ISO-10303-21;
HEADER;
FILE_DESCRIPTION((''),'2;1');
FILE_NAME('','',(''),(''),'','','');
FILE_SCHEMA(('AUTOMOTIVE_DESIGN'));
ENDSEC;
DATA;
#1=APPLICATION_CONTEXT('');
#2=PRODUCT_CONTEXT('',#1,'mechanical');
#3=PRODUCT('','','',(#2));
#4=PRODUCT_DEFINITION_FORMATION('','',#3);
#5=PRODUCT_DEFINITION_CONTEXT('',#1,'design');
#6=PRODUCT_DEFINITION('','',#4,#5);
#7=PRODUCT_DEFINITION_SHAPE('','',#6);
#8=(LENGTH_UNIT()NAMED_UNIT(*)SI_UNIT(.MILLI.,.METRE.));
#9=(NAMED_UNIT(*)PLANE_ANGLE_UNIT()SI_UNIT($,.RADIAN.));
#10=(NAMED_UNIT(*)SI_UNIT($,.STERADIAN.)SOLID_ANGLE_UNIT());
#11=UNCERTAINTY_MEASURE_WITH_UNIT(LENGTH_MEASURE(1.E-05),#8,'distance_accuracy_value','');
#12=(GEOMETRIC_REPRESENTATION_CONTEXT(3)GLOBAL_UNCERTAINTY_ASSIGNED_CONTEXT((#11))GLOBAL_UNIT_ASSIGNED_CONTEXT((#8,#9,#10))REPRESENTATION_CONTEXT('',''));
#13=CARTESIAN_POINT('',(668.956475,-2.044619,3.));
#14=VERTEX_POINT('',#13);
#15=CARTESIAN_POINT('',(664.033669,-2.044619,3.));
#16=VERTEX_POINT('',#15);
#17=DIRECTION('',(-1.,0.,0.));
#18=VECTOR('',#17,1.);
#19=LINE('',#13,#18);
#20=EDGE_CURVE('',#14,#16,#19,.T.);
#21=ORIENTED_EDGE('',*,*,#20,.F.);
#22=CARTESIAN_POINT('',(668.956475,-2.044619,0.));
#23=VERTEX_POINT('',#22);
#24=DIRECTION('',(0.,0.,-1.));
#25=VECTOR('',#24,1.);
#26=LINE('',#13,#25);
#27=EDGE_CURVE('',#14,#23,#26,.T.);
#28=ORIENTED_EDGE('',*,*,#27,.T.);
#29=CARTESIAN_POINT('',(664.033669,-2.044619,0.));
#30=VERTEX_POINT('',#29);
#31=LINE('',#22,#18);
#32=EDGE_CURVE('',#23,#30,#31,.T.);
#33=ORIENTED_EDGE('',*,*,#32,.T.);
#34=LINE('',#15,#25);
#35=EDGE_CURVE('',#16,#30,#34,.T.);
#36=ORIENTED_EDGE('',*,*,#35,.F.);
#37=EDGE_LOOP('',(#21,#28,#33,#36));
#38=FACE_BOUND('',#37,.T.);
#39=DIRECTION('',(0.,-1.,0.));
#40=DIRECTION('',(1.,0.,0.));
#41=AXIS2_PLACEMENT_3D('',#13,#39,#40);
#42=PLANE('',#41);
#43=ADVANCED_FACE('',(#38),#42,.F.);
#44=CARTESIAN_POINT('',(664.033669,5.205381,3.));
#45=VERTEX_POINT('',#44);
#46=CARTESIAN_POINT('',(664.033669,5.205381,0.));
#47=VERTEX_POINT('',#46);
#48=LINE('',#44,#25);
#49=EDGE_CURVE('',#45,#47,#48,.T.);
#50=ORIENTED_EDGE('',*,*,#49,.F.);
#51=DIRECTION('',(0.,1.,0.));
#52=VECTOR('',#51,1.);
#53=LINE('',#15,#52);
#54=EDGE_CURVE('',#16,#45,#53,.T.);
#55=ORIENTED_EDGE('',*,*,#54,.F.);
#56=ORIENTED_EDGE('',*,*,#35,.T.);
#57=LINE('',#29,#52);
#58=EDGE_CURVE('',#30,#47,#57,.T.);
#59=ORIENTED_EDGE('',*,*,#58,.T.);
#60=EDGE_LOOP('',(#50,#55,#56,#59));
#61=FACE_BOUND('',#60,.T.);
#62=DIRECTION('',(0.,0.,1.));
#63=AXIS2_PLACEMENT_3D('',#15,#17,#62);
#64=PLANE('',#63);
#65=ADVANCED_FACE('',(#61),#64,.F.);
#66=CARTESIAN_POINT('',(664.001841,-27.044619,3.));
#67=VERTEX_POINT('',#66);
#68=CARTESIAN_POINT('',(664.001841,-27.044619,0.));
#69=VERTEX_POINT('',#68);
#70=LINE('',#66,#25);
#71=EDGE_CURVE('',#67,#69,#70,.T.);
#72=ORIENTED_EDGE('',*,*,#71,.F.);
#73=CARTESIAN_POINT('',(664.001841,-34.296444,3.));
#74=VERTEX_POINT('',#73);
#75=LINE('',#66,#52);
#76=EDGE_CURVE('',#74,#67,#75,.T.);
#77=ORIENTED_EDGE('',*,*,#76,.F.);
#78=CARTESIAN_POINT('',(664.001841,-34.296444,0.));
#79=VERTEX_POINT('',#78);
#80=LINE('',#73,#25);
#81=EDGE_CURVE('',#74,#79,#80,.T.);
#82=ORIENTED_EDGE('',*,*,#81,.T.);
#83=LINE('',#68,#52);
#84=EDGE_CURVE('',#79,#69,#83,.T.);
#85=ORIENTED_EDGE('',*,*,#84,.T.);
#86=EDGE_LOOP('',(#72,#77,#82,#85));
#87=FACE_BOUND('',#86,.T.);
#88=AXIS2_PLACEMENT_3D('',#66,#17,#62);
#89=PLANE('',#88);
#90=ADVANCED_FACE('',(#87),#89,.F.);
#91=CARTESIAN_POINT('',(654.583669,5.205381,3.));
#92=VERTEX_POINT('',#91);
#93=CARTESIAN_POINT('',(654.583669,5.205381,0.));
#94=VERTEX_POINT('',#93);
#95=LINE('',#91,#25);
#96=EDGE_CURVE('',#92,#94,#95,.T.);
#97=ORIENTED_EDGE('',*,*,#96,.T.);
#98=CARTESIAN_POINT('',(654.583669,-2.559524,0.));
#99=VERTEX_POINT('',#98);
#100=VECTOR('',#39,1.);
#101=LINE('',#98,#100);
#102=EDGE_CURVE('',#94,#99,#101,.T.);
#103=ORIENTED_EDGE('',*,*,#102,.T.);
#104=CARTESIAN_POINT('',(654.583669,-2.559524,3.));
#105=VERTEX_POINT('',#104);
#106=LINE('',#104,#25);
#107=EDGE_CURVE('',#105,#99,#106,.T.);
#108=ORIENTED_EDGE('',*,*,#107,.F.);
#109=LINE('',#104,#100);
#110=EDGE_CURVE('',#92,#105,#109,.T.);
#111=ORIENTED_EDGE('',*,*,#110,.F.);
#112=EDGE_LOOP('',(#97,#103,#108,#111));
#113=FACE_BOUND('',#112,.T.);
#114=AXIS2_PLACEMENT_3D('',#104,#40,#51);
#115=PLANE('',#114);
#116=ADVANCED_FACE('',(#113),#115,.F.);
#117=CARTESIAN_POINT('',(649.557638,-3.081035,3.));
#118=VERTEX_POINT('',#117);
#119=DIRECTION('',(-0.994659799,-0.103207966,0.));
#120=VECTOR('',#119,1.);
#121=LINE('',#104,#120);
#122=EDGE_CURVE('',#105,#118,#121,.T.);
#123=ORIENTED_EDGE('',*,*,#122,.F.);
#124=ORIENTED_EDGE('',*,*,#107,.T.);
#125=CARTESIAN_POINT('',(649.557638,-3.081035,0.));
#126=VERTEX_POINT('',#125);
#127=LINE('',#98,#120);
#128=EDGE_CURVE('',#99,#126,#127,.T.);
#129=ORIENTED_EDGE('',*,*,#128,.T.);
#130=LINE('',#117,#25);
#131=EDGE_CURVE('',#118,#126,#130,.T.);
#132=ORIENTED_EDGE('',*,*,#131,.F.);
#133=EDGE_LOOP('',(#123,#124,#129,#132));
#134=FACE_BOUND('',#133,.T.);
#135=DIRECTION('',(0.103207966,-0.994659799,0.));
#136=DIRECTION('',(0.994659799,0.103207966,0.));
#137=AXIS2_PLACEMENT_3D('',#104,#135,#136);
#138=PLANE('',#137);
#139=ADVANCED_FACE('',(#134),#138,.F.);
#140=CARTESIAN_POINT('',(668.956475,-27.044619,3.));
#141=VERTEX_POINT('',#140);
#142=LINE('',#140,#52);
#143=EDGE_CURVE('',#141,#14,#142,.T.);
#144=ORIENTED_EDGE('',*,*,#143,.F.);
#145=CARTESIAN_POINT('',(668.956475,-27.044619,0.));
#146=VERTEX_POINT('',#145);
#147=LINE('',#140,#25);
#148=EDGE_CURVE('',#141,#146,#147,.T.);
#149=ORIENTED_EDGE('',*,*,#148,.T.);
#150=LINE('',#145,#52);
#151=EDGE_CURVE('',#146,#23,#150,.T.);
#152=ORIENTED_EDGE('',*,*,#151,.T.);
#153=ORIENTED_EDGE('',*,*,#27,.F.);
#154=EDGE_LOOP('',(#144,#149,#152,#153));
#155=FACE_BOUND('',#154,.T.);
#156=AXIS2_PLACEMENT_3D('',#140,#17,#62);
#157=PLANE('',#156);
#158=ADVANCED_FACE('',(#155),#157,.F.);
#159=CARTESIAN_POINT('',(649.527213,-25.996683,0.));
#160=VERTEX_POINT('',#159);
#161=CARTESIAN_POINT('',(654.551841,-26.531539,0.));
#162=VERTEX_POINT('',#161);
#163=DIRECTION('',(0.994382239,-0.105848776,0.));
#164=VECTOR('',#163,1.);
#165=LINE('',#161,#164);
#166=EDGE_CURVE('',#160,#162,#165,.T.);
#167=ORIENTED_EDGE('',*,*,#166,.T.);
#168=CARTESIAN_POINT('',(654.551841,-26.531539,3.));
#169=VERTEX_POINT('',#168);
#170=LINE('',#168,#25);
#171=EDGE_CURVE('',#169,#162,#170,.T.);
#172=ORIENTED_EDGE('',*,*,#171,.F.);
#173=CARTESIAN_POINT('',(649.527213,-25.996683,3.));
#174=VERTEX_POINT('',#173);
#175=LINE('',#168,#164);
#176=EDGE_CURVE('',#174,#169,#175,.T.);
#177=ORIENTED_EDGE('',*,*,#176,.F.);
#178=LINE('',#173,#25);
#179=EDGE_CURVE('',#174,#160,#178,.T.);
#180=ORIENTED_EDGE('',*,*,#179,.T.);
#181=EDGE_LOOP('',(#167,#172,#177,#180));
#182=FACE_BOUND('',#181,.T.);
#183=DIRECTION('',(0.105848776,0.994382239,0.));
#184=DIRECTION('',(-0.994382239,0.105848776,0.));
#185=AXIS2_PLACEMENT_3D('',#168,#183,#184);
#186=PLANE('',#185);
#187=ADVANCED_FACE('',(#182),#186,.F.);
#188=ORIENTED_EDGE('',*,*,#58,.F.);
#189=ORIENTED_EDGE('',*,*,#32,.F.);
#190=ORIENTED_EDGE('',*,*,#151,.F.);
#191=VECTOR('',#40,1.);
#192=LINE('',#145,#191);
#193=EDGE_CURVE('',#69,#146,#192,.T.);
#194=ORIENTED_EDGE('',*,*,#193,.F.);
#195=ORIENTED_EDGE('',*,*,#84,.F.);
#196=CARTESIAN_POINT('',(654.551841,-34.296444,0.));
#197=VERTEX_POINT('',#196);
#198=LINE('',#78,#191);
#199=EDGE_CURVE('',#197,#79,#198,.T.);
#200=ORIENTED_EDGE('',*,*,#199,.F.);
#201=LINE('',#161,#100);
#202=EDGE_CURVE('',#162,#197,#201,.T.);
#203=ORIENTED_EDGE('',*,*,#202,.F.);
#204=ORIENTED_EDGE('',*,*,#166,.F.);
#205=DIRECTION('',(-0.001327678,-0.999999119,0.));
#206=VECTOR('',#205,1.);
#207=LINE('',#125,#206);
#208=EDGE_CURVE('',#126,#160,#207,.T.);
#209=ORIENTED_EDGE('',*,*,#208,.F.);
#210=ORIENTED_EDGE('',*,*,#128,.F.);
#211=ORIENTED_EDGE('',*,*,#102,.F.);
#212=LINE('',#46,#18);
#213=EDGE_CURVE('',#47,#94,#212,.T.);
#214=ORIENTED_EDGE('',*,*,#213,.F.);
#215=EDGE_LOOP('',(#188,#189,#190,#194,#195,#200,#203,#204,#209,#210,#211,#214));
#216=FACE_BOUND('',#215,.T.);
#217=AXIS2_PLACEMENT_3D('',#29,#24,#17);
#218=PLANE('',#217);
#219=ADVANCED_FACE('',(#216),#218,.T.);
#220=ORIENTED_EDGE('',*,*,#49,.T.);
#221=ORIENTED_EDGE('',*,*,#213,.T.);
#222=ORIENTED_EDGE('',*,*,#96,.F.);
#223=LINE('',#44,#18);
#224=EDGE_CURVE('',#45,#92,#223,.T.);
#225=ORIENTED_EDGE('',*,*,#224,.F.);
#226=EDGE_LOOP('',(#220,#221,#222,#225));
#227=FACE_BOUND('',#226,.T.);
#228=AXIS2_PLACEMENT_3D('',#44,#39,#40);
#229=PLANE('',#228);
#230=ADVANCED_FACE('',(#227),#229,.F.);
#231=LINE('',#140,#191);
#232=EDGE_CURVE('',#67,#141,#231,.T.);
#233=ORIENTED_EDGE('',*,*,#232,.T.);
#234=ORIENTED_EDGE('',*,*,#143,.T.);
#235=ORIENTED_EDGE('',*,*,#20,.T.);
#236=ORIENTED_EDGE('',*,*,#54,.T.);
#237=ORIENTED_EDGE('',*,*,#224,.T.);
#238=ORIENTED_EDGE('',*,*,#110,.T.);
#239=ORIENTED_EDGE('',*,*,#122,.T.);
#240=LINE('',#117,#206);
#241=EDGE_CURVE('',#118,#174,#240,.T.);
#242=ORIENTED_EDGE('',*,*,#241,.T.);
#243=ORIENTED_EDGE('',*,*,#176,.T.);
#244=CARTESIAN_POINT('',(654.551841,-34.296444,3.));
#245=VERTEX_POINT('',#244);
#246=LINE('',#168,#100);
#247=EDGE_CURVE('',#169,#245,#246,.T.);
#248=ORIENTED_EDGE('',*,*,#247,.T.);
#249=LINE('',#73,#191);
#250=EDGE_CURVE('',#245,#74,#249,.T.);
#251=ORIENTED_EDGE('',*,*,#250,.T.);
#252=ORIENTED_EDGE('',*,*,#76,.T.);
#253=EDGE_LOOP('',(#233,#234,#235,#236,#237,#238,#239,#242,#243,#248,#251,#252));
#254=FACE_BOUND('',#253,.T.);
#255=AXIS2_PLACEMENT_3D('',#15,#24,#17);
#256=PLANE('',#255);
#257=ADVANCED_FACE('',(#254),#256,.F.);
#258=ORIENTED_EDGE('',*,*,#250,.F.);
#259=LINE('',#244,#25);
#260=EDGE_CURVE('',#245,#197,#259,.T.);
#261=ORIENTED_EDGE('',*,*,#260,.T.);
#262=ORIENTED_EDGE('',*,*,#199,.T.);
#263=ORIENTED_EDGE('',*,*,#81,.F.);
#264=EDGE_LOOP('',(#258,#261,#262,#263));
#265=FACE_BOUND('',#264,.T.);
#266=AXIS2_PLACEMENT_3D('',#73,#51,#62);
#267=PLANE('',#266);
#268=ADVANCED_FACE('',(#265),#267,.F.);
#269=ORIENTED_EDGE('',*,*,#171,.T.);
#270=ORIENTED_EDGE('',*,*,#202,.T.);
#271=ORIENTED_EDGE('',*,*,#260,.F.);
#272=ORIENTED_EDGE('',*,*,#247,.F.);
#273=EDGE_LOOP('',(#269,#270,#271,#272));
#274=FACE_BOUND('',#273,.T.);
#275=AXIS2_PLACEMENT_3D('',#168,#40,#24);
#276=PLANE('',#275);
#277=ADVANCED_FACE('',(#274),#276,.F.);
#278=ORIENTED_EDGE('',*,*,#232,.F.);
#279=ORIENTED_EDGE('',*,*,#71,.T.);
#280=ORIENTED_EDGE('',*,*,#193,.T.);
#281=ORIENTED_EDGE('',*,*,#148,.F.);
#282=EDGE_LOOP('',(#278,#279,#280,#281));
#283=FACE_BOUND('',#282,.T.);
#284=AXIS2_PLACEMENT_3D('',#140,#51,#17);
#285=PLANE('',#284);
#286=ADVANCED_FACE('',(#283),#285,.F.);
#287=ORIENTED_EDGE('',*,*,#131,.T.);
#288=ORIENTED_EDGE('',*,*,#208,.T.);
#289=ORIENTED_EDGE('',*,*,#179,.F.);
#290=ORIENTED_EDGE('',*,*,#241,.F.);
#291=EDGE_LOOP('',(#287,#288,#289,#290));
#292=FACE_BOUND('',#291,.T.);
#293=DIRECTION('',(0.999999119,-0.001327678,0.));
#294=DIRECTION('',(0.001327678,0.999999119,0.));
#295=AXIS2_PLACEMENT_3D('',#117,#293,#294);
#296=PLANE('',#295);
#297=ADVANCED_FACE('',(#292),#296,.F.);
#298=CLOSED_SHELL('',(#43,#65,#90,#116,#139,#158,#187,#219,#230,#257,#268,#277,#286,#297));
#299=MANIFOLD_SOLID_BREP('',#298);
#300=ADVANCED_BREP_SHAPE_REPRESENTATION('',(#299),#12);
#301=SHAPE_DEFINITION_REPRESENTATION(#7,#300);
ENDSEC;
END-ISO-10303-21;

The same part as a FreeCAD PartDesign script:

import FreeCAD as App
import Part
import Sketcher


def add_polygon(sketch, points):
    """Adds a closed chain of lines whose ends are joined by coincident constraints."""
    first, n = sketch.GeometryCount, len(points)
    for a, b in zip(points, points[1:] + points[:1]):
        sketch.addGeometry(Part.LineSegment(App.Vector(*a, 0), App.Vector(*b, 0)), False)
    for i in range(n):
        sketch.addConstraint(Sketcher.Constraint("Coincident", first + i, 2, first + (i + 1) % n, 1))

doc = App.newDocument("Part")
body = doc.addObject("PartDesign::Body", "Body")

# Sketch on XY plane
sketch1 = body.newObject("Sketcher::SketchObject", "Sketch")
sketch1.AttachmentSupport = (doc.getObject("XY_Plane"), [""])
sketch1.MapMode = "FlatFace"
add_polygon(sketch1, [(669, -27), (669, -2), (664, -2), (664, 5.2), (654.6, 5.2), (654.6, -2.6), (649.6, -3.1), (649.5, -26), (654.6, -26.5), (654.6, -34.3), (664, -34.3), (664, -27)])  # lines 0-11
sketch1.addConstraint(Sketcher.Constraint("Vertical", 0))
sketch1.addConstraint(Sketcher.Constraint("Horizontal", 1))
sketch1.addConstraint(Sketcher.Constraint("Vertical", 2))
sketch1.addConstraint(Sketcher.Constraint("Horizontal", 3))
sketch1.addConstraint(Sketcher.Constraint("Vertical", 4))
sketch1.addConstraint(Sketcher.Constraint("Vertical", 8))
sketch1.addConstraint(Sketcher.Constraint("Horizontal", 9))
sketch1.addConstraint(Sketcher.Constraint("Vertical", 10))
sketch1.addConstraint(Sketcher.Constraint("Horizontal", 11))
sketch1.addConstraint(Sketcher.Constraint("Equal", 3, 9))
sketch1.addConstraint(Sketcher.Constraint("Equal", 4, 8))
sketch1.addConstraint(Sketcher.Constraint("Equal", 5, 7))
sketch1.addConstraint(Sketcher.Constraint("DistanceY", 0, 1, 0, 2, 25.0))
sketch1.addConstraint(Sketcher.Constraint("DistanceX", 3, 2, 3, 1, 9.45))
sketch1.addConstraint(Sketcher.Constraint("DistanceY", 2, 1, 2, 2, 7.25))
sketch1.addConstraint(Sketcher.Constraint("Distance", 6, 22.915668))
sketch1.addConstraint(Sketcher.Constraint("DistanceX", 1, 2, 1, 1, 4.922806))
sketch1.addConstraint(Sketcher.Constraint("DistanceX", 11, 1, 11, 2, 4.954633))
sketch1.addConstraint(Sketcher.Constraint("DistanceY", 4, 2, 4, 1, 7.764905))
sketch1.addConstraint(Sketcher.Constraint("DistanceY", 10, 1, 10, 2, 7.251826))
sketch1.addConstraint(Sketcher.Constraint("DistanceY", 0, 2, -1, 1, 2.044619))
sketch1.addConstraint(Sketcher.Constraint("DistanceX", -1, 1, 1, 2, 664.033669))
sketch1.addConstraint(Sketcher.Constraint("DistanceX", 5, 2, 4, 2, 5.026031))
sketch1.addConstraint(Sketcher.Constraint("DistanceY", 5, 2, 4, 2, 0.521511))
pad1 = body.newObject("PartDesign::Pad", "Pad")
pad1.Profile = sketch1
pad1.Length = 3

doc.recompute()
